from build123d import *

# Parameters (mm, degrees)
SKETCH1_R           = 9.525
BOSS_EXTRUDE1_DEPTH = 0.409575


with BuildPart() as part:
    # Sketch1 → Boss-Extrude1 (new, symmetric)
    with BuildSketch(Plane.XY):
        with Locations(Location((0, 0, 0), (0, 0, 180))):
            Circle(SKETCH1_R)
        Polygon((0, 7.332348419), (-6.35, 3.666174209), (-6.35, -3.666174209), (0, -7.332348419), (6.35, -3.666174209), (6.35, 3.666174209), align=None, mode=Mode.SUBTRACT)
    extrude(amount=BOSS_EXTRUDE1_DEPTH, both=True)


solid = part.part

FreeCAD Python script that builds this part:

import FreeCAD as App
import Part
import Sketcher
from FreeCAD import Vector
Q = App.Units.Quantity

doc = App.newDocument("Part")
body = doc.addObject("PartDesign::Body", "Body")

# Sketch on XY plane
sketch1 = doc.addObject("Sketcher::SketchObject", "Sketch")
body.addObject(sketch1)
sketch1.AttachmentSupport = (doc.XY_Plane, [""])
sketch1.MapMode = "FlatFace"
sketch1.addGeometry([
    Part.Circle(Vector(0, 0, 0), Vector(0, 0, 1), 10),  # 0
    Part.LineSegment(Vector(-6, 4, 0), Vector(0, 7, 0)),  # 1
    Part.LineSegment(Vector(0, 7, 0), Vector(6, 4, 0)),  # 2
    Part.LineSegment(Vector(6, 4, 0), Vector(6, -4, 0)),  # 3
    Part.LineSegment(Vector(6, -4, 0), Vector(0, -7, 0)),  # 4
    Part.LineSegment(Vector(0, -7, 0), Vector(-6, -4, 0)),  # 5
    Part.LineSegment(Vector(-6, -4, 0), Vector(-6, 4, 0)),  # 6
], False)
sketch1.addConstraint([
    Sketcher.Constraint("Coincident", 1, 2, 2, 1),
    Sketcher.Constraint("Coincident", 2, 2, 3, 1),
    Sketcher.Constraint("Coincident", 3, 2, 4, 1),
    Sketcher.Constraint("Coincident", 4, 2, 5, 1),
    Sketcher.Constraint("Coincident", 5, 2, 6, 1),
    Sketcher.Constraint("Coincident", 6, 2, 1, 1),
    Sketcher.Constraint("Vertical", 3),
    Sketcher.Constraint("Vertical", 6),
    Sketcher.Constraint("Coincident", 0, 3, -1, 1),
    Sketcher.Constraint("Symmetric", 1, 2, 4, 2, -1, 1),
    Sketcher.Constraint("Symmetric", 2, 2, 5, 2, -1, 1),
    Sketcher.Constraint("PointOnObject", 1, 2, -2),
    Sketcher.Constraint("Parallel", 1, 4),
    Sketcher.Constraint("Horizontal", 3, 2, 5, 2),
    Sketcher.Constraint("Diameter", 0, Q("0.75 in")),
    Sketcher.Constraint("Angle", 1, Q("30 deg")),
    Sketcher.Constraint("DistanceX", 5, 2, 3, 2, Q("0.5 in")),
    Sketcher.Constraint("DistanceY", 3, 2, 3, 1, 7.332348),
])
pad1 = doc.addObject("PartDesign::Pad", "Pad")
body.addObject(pad1)
pad1.Profile = sketch1
pad1.Length = 0.81915
pad1.Midplane = True

doc.recompute()
